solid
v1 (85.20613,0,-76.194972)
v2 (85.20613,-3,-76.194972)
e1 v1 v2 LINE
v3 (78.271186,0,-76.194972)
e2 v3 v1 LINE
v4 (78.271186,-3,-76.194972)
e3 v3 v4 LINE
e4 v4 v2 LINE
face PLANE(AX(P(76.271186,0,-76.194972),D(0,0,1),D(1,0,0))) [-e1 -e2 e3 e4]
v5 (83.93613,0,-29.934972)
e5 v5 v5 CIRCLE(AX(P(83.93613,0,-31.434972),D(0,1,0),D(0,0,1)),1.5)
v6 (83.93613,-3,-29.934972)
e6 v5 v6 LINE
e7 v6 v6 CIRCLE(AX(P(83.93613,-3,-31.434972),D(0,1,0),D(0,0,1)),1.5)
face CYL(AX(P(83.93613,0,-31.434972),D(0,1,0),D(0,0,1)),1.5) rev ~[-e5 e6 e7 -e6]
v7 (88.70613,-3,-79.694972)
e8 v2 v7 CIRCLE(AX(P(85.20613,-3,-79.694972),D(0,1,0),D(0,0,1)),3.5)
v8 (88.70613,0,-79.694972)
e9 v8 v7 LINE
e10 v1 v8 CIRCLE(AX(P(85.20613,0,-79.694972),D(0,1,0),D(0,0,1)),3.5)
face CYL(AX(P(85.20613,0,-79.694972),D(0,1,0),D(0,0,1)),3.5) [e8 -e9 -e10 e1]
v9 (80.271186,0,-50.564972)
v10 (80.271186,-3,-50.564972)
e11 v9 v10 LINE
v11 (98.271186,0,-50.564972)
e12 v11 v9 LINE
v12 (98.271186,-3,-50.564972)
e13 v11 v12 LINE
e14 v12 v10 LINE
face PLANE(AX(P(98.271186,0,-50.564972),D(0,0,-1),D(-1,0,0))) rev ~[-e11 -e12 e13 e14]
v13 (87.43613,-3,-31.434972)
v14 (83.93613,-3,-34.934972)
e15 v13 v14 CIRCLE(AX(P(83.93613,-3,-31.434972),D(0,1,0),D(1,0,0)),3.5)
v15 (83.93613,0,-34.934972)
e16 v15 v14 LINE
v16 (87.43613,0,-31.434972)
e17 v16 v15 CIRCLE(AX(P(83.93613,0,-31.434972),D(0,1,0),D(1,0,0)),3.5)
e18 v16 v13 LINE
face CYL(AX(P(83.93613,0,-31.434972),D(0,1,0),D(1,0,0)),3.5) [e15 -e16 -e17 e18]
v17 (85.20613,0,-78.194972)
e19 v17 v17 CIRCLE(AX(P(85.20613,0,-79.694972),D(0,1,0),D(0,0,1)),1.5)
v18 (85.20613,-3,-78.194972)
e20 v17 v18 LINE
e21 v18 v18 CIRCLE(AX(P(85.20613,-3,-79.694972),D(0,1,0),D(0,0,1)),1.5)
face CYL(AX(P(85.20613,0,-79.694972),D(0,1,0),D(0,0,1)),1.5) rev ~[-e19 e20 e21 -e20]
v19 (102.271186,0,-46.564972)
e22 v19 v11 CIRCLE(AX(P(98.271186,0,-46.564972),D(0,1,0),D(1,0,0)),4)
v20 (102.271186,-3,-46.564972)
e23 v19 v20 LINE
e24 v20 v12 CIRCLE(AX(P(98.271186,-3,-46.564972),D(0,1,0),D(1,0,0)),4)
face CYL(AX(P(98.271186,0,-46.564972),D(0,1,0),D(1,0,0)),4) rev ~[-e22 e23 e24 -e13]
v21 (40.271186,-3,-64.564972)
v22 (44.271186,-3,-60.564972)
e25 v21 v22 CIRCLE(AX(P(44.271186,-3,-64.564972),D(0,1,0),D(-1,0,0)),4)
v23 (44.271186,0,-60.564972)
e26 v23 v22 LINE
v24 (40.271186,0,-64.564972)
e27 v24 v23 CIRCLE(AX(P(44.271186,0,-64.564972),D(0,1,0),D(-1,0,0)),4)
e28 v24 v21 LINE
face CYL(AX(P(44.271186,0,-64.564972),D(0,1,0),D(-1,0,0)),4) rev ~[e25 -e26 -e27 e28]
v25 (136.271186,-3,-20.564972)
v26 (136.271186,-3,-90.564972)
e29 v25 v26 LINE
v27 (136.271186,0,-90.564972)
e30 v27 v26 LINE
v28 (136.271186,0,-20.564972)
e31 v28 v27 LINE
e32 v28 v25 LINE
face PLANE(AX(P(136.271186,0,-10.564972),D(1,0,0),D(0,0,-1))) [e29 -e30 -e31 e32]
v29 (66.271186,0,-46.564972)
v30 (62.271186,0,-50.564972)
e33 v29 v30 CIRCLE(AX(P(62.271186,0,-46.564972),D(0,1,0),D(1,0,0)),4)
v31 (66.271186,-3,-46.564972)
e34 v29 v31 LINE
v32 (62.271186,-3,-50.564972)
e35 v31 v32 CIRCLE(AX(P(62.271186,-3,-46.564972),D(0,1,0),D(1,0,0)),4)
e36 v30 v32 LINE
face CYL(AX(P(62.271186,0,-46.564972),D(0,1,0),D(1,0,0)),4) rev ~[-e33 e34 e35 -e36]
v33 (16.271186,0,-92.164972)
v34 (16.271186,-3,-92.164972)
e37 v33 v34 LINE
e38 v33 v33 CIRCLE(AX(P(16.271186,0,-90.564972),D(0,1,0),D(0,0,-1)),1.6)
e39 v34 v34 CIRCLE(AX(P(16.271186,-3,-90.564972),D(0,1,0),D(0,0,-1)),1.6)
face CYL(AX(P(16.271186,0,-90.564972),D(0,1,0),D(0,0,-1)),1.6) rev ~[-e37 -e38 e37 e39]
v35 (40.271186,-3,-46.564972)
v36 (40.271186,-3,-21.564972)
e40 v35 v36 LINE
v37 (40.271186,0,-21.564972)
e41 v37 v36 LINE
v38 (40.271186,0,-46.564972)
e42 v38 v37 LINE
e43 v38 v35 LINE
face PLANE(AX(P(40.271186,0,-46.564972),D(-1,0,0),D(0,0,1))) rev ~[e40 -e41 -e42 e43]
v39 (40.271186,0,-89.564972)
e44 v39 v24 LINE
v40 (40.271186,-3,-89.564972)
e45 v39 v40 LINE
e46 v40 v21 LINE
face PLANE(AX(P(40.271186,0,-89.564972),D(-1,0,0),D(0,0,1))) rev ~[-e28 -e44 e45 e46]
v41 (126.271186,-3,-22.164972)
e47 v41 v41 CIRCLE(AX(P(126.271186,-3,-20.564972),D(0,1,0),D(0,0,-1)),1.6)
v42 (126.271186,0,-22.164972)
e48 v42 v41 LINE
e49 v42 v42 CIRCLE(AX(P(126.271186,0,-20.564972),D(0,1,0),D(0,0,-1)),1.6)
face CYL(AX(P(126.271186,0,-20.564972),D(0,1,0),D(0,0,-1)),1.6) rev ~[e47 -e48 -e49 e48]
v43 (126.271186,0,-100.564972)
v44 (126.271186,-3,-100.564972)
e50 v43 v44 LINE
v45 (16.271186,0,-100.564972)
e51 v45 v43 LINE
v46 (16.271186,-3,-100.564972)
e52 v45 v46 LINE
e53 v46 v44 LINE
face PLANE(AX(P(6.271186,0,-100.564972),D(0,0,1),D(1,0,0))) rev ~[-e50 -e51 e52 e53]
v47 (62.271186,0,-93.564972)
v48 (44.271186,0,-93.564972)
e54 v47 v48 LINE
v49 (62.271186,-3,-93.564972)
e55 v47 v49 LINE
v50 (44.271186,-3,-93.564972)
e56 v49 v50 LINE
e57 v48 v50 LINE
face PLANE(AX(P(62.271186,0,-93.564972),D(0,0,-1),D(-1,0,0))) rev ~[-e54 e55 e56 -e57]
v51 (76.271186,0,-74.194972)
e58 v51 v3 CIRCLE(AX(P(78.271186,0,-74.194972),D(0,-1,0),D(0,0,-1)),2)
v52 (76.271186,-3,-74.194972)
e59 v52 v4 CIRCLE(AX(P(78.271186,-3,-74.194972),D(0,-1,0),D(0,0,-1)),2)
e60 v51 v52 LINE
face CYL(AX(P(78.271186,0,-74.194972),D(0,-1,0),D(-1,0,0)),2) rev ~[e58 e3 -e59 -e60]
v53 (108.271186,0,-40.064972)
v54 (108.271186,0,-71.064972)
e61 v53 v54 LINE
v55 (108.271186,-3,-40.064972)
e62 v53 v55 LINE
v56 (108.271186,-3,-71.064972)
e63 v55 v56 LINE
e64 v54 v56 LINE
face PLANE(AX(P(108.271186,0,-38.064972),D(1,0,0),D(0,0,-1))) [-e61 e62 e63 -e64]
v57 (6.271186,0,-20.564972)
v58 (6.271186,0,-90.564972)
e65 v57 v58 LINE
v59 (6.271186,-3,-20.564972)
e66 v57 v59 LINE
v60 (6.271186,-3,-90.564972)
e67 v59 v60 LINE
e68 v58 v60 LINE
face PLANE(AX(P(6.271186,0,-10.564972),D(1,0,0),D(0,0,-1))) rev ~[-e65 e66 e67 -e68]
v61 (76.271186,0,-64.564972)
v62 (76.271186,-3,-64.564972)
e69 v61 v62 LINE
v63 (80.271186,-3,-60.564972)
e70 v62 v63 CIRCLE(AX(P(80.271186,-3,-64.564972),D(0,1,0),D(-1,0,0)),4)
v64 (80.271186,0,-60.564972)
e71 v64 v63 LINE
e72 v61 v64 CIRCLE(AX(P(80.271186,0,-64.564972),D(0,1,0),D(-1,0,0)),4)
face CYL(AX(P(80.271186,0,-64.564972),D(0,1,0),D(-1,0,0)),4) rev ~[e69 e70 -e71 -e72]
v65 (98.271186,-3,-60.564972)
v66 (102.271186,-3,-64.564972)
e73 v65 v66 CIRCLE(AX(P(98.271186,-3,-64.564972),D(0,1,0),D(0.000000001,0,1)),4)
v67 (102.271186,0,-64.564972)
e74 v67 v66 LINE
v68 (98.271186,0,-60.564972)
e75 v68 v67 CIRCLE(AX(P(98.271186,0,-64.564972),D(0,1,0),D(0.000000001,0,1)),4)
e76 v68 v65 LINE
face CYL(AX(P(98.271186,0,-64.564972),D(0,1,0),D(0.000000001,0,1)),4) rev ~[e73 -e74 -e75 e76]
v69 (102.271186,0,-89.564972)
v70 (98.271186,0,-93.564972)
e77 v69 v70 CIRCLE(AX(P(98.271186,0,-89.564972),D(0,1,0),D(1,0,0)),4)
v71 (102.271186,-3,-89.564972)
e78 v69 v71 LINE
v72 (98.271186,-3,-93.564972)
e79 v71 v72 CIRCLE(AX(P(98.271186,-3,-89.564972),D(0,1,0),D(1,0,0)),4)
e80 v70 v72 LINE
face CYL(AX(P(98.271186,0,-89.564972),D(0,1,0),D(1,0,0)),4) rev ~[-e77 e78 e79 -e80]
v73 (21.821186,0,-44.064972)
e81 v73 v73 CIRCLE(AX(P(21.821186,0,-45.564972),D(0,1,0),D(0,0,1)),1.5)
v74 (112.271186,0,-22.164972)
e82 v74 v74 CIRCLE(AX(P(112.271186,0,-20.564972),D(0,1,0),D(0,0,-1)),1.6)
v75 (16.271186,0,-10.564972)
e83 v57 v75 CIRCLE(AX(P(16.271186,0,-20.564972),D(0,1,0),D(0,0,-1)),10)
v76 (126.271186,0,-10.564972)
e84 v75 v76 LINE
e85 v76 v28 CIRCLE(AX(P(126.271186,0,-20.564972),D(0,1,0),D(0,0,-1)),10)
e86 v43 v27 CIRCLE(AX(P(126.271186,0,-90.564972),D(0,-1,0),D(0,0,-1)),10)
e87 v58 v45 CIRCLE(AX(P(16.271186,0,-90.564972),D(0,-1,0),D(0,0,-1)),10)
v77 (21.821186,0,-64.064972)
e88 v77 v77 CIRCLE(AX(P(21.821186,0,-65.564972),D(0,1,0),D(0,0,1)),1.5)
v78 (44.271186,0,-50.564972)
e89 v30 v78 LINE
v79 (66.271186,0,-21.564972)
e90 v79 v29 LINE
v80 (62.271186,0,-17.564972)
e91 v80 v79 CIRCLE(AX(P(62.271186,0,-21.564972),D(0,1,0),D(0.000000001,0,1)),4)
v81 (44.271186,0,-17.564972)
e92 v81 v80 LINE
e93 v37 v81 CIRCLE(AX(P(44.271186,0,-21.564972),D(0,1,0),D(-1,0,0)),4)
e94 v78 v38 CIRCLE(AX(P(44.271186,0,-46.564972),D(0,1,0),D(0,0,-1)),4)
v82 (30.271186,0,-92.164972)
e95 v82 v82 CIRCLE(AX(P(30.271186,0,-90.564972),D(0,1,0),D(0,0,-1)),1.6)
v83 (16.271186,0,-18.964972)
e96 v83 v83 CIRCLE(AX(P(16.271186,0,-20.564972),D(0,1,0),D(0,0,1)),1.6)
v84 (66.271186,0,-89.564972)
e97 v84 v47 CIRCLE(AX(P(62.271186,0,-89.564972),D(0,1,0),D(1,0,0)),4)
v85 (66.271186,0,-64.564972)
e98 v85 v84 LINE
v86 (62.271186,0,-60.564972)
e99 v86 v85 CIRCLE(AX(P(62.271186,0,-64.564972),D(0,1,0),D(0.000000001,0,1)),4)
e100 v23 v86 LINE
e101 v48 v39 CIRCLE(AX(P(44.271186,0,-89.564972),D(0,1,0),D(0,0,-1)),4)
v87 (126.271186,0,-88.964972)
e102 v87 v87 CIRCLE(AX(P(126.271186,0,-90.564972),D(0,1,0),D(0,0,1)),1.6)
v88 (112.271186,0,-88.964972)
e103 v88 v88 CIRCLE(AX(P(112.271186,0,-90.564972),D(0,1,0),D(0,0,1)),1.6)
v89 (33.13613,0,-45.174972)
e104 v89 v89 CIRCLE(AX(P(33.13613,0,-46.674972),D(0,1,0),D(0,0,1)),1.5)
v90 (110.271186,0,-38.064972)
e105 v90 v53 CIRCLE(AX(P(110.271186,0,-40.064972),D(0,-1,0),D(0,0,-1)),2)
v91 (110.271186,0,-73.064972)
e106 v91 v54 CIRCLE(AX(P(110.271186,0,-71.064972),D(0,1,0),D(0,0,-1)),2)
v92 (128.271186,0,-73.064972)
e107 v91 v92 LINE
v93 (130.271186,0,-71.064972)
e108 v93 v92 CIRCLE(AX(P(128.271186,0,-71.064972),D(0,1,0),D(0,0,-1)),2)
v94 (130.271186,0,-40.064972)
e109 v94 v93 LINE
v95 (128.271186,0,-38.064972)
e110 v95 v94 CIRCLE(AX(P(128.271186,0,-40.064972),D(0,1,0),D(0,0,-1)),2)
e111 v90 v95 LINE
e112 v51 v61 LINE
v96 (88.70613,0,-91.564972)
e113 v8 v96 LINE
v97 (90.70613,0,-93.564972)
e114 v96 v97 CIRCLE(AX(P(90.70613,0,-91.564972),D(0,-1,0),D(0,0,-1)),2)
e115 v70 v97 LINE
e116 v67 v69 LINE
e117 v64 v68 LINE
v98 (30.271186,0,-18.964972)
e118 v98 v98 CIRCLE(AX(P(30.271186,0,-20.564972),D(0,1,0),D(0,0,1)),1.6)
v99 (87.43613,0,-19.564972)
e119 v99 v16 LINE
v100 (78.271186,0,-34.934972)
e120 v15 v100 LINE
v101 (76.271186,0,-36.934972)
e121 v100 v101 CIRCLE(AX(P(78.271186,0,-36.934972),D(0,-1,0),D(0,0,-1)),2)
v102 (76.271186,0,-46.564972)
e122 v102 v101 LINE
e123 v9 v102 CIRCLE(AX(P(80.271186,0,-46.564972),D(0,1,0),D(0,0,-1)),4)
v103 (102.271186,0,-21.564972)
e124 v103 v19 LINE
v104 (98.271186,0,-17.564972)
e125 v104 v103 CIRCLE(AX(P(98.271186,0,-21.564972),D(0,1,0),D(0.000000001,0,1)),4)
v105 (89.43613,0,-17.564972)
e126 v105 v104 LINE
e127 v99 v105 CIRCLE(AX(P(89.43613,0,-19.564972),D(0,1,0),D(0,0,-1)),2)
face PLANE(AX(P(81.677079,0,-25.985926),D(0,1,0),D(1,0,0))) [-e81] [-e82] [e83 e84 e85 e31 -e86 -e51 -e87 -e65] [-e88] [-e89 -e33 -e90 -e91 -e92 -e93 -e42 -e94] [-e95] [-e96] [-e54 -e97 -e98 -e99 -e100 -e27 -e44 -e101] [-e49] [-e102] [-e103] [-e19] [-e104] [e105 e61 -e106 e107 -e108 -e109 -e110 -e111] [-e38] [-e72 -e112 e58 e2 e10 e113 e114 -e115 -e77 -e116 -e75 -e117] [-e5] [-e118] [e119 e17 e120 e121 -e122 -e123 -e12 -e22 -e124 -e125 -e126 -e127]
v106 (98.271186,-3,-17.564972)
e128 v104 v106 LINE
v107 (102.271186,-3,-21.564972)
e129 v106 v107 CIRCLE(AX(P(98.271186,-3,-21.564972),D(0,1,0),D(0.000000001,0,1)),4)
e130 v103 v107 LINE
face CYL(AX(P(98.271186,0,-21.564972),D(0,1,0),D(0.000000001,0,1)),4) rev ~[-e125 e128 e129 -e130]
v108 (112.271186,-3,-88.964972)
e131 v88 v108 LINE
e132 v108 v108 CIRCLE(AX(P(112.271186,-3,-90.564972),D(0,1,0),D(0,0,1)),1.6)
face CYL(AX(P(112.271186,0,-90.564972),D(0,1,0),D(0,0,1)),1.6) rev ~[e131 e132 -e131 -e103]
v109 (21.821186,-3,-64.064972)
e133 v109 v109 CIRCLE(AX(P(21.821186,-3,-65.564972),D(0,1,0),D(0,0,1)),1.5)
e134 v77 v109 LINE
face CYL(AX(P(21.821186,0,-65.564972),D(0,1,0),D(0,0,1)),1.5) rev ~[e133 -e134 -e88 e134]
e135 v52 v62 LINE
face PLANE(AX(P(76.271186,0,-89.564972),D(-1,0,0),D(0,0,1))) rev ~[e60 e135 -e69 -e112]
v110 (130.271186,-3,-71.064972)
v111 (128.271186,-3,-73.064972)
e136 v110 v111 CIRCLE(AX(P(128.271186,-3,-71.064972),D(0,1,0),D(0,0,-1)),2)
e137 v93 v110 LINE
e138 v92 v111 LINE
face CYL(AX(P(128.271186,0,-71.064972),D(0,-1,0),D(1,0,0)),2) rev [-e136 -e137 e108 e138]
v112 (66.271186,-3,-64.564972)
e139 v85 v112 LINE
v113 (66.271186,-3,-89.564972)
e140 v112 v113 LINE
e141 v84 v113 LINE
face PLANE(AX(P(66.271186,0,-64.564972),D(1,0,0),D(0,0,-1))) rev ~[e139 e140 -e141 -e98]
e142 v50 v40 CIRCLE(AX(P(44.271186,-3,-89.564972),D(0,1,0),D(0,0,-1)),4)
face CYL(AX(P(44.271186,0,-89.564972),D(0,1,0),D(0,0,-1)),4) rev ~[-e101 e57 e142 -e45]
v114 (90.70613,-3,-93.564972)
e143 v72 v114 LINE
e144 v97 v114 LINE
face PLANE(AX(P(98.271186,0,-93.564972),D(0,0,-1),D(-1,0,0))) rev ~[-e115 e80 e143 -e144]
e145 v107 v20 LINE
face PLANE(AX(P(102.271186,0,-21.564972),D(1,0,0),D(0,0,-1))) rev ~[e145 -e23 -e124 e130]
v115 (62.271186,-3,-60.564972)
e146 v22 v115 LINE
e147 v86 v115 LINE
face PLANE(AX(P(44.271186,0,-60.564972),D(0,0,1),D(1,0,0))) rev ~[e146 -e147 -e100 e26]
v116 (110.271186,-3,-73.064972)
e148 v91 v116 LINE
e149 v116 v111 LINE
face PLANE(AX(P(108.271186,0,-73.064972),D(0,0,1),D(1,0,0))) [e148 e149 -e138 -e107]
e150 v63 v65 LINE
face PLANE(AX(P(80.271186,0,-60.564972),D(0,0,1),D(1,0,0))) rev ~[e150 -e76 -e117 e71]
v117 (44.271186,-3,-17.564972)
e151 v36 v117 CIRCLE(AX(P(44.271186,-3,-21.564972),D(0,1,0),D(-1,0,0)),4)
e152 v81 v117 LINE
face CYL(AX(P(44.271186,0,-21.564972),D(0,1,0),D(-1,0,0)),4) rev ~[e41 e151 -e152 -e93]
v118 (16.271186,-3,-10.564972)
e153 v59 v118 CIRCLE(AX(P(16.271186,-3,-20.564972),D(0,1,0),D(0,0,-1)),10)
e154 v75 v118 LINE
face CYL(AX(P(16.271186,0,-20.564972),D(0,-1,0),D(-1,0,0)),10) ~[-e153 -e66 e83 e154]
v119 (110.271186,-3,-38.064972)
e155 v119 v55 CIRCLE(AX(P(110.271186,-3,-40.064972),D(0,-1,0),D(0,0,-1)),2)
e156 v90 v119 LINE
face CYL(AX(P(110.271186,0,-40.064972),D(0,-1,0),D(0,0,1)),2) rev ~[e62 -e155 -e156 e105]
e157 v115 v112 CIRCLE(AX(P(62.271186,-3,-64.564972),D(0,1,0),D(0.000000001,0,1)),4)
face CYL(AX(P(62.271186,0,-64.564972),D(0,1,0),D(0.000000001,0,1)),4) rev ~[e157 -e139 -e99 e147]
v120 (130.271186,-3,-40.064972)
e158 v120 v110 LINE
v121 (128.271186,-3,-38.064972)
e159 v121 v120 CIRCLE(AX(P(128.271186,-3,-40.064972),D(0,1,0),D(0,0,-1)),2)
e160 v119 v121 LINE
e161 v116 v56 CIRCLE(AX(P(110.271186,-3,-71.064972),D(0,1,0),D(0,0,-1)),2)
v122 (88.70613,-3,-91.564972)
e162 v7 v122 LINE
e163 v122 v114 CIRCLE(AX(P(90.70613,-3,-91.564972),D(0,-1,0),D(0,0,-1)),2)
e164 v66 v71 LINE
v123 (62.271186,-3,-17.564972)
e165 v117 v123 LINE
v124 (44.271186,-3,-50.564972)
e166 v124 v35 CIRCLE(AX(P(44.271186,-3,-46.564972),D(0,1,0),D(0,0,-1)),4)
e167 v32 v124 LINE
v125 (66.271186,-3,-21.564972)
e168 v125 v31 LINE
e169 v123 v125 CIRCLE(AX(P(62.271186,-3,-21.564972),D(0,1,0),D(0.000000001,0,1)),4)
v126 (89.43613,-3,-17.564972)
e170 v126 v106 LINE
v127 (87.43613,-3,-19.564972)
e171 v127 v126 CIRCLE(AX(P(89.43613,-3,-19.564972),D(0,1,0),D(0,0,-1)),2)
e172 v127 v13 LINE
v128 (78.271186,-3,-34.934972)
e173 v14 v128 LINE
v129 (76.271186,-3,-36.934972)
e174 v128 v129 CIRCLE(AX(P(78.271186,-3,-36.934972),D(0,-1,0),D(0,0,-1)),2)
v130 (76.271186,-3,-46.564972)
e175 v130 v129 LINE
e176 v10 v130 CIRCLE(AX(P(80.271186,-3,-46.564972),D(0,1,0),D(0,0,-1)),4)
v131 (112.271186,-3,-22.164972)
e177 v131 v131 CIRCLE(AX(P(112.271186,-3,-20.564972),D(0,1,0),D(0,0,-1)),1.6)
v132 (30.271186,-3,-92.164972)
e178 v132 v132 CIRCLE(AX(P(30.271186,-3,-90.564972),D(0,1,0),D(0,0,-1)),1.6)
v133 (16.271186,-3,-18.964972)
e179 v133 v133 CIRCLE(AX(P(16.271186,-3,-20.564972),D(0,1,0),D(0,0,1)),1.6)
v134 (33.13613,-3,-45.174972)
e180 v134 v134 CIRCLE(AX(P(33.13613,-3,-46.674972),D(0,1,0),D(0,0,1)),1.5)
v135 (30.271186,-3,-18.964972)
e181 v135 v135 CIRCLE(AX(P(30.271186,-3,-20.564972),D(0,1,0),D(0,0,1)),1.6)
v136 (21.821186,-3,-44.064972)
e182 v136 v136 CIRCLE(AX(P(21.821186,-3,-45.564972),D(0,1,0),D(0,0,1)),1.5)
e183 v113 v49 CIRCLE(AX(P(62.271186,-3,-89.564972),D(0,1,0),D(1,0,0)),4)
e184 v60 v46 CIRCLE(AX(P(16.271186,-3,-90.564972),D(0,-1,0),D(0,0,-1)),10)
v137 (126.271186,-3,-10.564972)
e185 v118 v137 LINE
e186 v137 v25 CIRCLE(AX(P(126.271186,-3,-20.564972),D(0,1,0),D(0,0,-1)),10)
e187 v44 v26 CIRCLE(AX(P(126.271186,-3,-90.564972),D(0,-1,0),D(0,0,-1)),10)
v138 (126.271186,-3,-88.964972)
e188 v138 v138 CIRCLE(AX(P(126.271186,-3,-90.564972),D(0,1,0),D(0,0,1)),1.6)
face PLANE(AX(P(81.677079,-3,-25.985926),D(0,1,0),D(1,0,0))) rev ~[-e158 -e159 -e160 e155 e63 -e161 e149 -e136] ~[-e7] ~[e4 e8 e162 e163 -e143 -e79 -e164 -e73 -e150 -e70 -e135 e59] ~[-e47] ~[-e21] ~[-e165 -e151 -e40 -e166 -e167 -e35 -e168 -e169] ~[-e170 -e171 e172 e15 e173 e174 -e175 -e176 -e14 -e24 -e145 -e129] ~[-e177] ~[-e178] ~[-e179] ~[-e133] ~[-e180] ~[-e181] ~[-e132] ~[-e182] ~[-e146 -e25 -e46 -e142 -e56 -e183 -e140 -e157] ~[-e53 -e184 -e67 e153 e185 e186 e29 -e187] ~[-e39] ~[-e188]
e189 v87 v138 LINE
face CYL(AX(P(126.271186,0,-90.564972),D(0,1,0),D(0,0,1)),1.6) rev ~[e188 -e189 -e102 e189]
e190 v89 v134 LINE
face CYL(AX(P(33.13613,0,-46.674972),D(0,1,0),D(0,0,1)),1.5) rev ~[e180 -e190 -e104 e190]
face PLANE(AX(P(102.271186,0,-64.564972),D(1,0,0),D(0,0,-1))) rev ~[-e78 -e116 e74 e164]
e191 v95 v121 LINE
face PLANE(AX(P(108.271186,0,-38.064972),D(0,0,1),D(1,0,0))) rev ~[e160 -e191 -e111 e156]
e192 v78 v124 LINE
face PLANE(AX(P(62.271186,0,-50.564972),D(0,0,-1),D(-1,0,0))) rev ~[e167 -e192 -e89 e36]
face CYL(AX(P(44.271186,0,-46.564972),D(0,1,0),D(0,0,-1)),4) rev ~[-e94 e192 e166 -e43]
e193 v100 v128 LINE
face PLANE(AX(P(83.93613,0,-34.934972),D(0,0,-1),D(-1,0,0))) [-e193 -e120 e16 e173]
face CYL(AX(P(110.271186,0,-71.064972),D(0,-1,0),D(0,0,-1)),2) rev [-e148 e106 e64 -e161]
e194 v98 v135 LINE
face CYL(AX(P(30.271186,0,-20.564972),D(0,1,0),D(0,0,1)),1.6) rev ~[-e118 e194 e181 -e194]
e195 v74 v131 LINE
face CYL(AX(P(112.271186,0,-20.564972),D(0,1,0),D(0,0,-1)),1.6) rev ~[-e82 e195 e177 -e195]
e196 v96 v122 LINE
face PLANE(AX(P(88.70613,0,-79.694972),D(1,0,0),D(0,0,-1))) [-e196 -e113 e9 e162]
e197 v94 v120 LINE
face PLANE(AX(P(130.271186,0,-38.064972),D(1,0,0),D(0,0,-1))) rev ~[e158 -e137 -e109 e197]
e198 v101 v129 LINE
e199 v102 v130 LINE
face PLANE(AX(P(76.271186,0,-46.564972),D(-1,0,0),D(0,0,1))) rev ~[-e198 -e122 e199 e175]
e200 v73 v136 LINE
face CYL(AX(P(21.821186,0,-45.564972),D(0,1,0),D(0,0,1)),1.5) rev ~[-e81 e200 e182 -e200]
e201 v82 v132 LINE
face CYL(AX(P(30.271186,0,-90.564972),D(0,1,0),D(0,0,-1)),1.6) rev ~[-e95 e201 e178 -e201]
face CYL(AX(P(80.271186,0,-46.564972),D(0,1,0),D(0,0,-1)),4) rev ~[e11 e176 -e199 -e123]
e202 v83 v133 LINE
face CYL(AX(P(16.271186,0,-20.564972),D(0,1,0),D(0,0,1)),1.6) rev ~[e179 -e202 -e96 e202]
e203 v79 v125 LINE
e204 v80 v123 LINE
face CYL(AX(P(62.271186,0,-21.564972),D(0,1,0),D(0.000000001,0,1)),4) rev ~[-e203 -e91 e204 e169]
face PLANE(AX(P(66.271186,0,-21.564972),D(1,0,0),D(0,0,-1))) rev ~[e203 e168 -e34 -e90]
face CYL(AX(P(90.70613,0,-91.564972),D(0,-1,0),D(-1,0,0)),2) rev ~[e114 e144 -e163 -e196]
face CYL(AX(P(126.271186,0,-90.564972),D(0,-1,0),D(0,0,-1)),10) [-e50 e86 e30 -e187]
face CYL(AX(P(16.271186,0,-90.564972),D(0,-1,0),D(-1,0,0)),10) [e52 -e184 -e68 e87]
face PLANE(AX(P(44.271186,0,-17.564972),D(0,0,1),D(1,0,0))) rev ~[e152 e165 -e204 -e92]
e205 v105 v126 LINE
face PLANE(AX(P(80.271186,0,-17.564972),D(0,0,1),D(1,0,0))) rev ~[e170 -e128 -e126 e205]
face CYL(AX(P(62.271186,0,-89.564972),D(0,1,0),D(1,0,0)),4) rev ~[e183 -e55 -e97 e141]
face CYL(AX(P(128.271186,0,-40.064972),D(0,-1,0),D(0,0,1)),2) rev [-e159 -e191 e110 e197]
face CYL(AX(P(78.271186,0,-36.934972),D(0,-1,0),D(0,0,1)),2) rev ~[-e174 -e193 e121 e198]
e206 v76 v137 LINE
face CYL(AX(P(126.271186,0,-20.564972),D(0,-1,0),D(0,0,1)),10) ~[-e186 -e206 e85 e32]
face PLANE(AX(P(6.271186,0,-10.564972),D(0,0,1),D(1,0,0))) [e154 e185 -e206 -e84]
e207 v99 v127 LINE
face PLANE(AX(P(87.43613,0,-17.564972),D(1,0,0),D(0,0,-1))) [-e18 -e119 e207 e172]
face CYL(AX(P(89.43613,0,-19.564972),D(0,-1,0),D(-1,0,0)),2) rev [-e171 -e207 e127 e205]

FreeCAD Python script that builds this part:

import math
import FreeCAD as App
import Part
import Sketcher

V = App.Vector


def edges_at(feature, points):
    """Names of the edges that pass closest to the given points."""
    edges = feature.Shape.Edges
    near = lambda p: min(range(len(edges)), key=lambda i: edges[i].distToShape(Part.Vertex(*p))[0])
    return sorted({f"Edge{near(p) + 1}" for p in points})


def add_polygon(sketch, points):
    """Adds a closed chain of lines whose ends are joined by coincident constraints."""
    first, n = sketch.GeometryCount, len(points)
    for a, b in zip(points, points[1:] + points[:1]):
        sketch.addGeometry(Part.LineSegment(App.Vector(*a, 0), App.Vector(*b, 0)), False)
    for i in range(n):
        sketch.addConstraint(Sketcher.Constraint("Coincident", first + i, 2, first + (i + 1) % n, 1))

doc = App.newDocument("Part")
params = doc.addObject("Spreadsheet::Sheet", "Params")
for row, (alias, value) in enumerate([
    ("sketch1_width", "130 mm"),
    ("sketch1_height", "90 mm"),
    ("pad1_length", "3 mm"),
    ("sketch2_diameter", "3 mm"),
    ("pocket1_length", "10 mm"),
    ("sketch3_diameter", "3.2 mm"),
    ("pocket2_length", "10 mm"),
    ("fillet_radius", "10 mm"),
    ("sketch4_radius", "4 mm"),
    ("sketch4_width", "18 mm"),
    ("sketch4_height", "25 mm"),
    ("pocket3_length", "10 mm"),
    ("sketch5_diameter", "3 mm"),
    ("sketch5_radius", "3.5 mm"),
    ("sketch5_height", "13.87 mm"),
    ("pad2_length", "3 mm"),
    ("sketch6_diameter", "3 mm"),
    ("pocket4_length", "3 mm"),
    ("sketch7_diameter", "3 mm"),
    ("pocket5_length", "10 mm"),
    ("sketch8_width", "22 mm"),
    ("sketch8_height", "35 mm"),
    ("pocket6_length", "10 mm"),
    ("fillet2_radius", "2 mm"),
], start=1):
    params.set(f"A{row}", alias)
    params.set(f"B{row}", "=" + value)
    params.setAlias(f"B{row}", alias)

body = doc.addObject("PartDesign::Body", "Body")

# Sketch on XZ plane
sketch1 = body.newObject("Sketcher::SketchObject", "Sketch")
sketch1.AttachmentSupport = (doc.getObject("XZ_Plane"), [""])
sketch1.MapMode = "FlatFace"
add_polygon(sketch1, [(6, -101), (6, -11), (136, -11), (136, -101)])  # lines 0-3
sketch1.addConstraint(Sketcher.Constraint("Vertical", 0))
sketch1.addConstraint(Sketcher.Constraint("Horizontal", 1))
sketch1.addConstraint(Sketcher.Constraint("Vertical", 2))
sketch1.addConstraint(Sketcher.Constraint("Horizontal", 3))
sketch1.addConstraint(Sketcher.Constraint("DistanceX", 1, 1, 1, 2, 130.0))
sketch1.addConstraint(Sketcher.Constraint("DistanceY", 0, 1, 0, 2, 90.0))
sketch1.addConstraint(Sketcher.Constraint("DistanceY", 0, 2, -1, 1, 10.564972))
sketch1.addConstraint(Sketcher.Constraint("DistanceX", -1, 1, 0, 2, 6.271186))
sketch1.setExpression("Constraints[8]", "Params.sketch1_width")
sketch1.setExpression("Constraints[9]", "Params.sketch1_height")
pad1 = body.newObject("PartDesign::Pad", "Pad")
pad1.Profile = sketch1
pad1.setExpression("Length", "Params.pad1_length")

# Sketch on XZ plane
sketch2 = body.newObject("Sketcher::SketchObject", "Sketch001")
sketch2.AttachmentSupport = (doc.getObject("XZ_Plane"), [""])
sketch2.MapMode = "FlatFace"
sketch2.addGeometry(Part.Circle(V(126.3, -63.6, 0), V(0, 0, 1), 1.5), False)
sketch2.addGeometry(Part.Circle(V(126.3, -47.6, 0), V(0, 0, 1), 1.5), False)
sketch2.addGeometry(Part.Circle(V(112.3, -47.6, 0), V(0, 0, 1), 1.5), False)
sketch2.addGeometry(Part.Circle(V(112.3, -63.6, 0), V(0, 0, 1), 1.5), False)
sketch2.addGeometry(Part.Circle(V(16.3, -47.6, 0), V(0, 0, 1), 1.5), False)
sketch2.addGeometry(Part.Circle(V(30.3, -47.6, 0), V(0, 0, 1), 1.5), False)
sketch2.addGeometry(Part.Circle(V(16.3, -63.6, 0), V(0, 0, 1), 1.5), False)
sketch2.addGeometry(Part.Circle(V(30.3, -63.6, 0), V(0, 0, 1), 1.5), False)
sketch2.addConstraint(Sketcher.Constraint("Equal", 0, 1))
sketch2.addConstraint(Sketcher.Constraint("Equal", 1, 2))
sketch2.addConstraint(Sketcher.Constraint("Equal", 2, 3))
sketch2.addConstraint(Sketcher.Constraint("Equal", 3, 4))
sketch2.addConstraint(Sketcher.Constraint("Equal", 4, 5))
sketch2.addConstraint(Sketcher.Constraint("Equal", 5, 6))
sketch2.addConstraint(Sketcher.Constraint("Equal", 6, 7))
sketch2.addConstraint(Sketcher.Constraint("Horizontal", 1, 3, 2, 3))
sketch2.addConstraint(Sketcher.Constraint("Horizontal", 0, 3, 3, 3))
sketch2.addConstraint(Sketcher.Constraint("Horizontal", 2, 3, 4, 3))
sketch2.addConstraint(Sketcher.Constraint("Horizontal", 4, 3, 5, 3))
sketch2.addConstraint(Sketcher.Constraint("Horizontal", 3, 3, 6, 3))
sketch2.addConstraint(Sketcher.Constraint("Horizontal", 6, 3, 7, 3))
sketch2.addConstraint(Sketcher.Constraint("Vertical", 0, 3, 1, 3))
sketch2.addConstraint(Sketcher.Constraint("Vertical", 2, 3, 3, 3))
sketch2.addConstraint(Sketcher.Constraint("Vertical", 4, 3, 6, 3))
sketch2.addConstraint(Sketcher.Constraint("Vertical", 5, 3, 7, 3))
sketch2.addConstraint(Sketcher.Constraint("Diameter", 0, 3.0))
sketch2.addConstraint(Sketcher.Constraint("DistanceY", 0, 3, 1, 3, 16.0))
sketch2.addConstraint(Sketcher.Constraint("DistanceX", 2, 3, 1, 3, 14.0))
sketch2.addConstraint(Sketcher.Constraint("DistanceX", 4, 3, 2, 3, 96.0))
sketch2.addConstraint(Sketcher.Constraint("DistanceX", 4, 3, 5, 3, 14.0))
sketch2.addConstraint(Sketcher.Constraint("DistanceY", 0, 3, -1, 1, 63.564972))
sketch2.addConstraint(Sketcher.Constraint("DistanceX", -1, 1, 0, 3, 126.271186))
sketch2.setExpression("Constraints[17]", "Params.sketch2_diameter")
pocket1 = body.newObject("PartDesign::Pocket", "Pocket")
pocket1.Profile = sketch2
pocket1.setExpression("Length", "Params.pocket1_length")
pocket1.Reversed = True

# Sketch on XZ plane
sketch3 = body.newObject("Sketcher::SketchObject", "Sketch002")
sketch3.AttachmentSupport = (doc.getObject("XZ_Plane"), [""])
sketch3.MapMode = "FlatFace"
sketch3.addGeometry(Part.Circle(V(16.3, -20.6, 0), V(0, 0, 1), 1.6), False)
sketch3.addGeometry(Part.Circle(V(30.3, -20.6, 0), V(0, 0, 1), 1.6), False)
sketch3.addGeometry(Part.Circle(V(30.3, -90.6, 0), V(0, 0, 1), 1.6), False)
sketch3.addGeometry(Part.Circle(V(16.3, -90.6, 0), V(0, 0, 1), 1.6), False)
sketch3.addGeometry(Part.Circle(V(112.3, -20.6, 0), V(0, 0, 1), 1.6), False)
sketch3.addGeometry(Part.Circle(V(126.3, -20.6, 0), V(0, 0, 1), 1.6), False)
sketch3.addGeometry(Part.Circle(V(126.3, -90.6, 0), V(0, 0, 1), 1.6), False)
sketch3.addGeometry(Part.Circle(V(112.3, -90.6, 0), V(0, 0, 1), 1.6), False)
sketch3.addConstraint(Sketcher.Constraint("Equal", 0, 1))
sketch3.addConstraint(Sketcher.Constraint("Equal", 1, 2))
sketch3.addConstraint(Sketcher.Constraint("Equal", 2, 3))
sketch3.addConstraint(Sketcher.Constraint("Equal", 3, 4))
sketch3.addConstraint(Sketcher.Constraint("Equal", 4, 5))
sketch3.addConstraint(Sketcher.Constraint("Equal", 5, 6))
sketch3.addConstraint(Sketcher.Constraint("Equal", 6, 7))
sketch3.addConstraint(Sketcher.Constraint("Horizontal", 0, 3, 1, 3))
sketch3.addConstraint(Sketcher.Constraint("Horizontal", 2, 3, 3, 3))
sketch3.addConstraint(Sketcher.Constraint("Horizontal", 1, 3, 4, 3))
sketch3.addConstraint(Sketcher.Constraint("Horizontal", 4, 3, 5, 3))
sketch3.addConstraint(Sketcher.Constraint("Horizontal", 3, 3, 6, 3))
sketch3.addConstraint(Sketcher.Constraint("Horizontal", 6, 3, 7, 3))
sketch3.addConstraint(Sketcher.Constraint("Vertical", 1, 3, 2, 3))
sketch3.addConstraint(Sketcher.Constraint("Vertical", 0, 3, 3, 3))
sketch3.addConstraint(Sketcher.Constraint("Vertical", 5, 3, 6, 3))
sketch3.addConstraint(Sketcher.Constraint("Vertical", 4, 3, 7, 3))
sketch3.addConstraint(Sketcher.Constraint("Diameter", 0, 3.2))
sketch3.addConstraint(Sketcher.Constraint("DistanceX", 0, 3, 1, 3, 14.0))
sketch3.addConstraint(Sketcher.Constraint("DistanceY", 2, 3, 1, 3, 70.0))
sketch3.addConstraint(Sketcher.Constraint("DistanceX", 1, 3, 4, 3, 82.0))
sketch3.addConstraint(Sketcher.Constraint("DistanceX", 4, 3, 5, 3, 14.0))
sketch3.addConstraint(Sketcher.Constraint("DistanceY", 0, 3, -1, 1, 20.564972))
sketch3.addConstraint(Sketcher.Constraint("DistanceX", -1, 1, 0, 3, 16.271186))
sketch3.setExpression("Constraints[17]", "Params.sketch3_diameter")
pocket2 = body.newObject("PartDesign::Pocket", "Pocket001")
pocket2.Profile = sketch3
pocket2.setExpression("Length", "Params.pocket2_length")
pocket2.Reversed = True
doc.recompute()

fillet = body.newObject("PartDesign::Fillet", "Fillet")
fillet.Base = (pocket2, edges_at(pocket2, [
    (6.271, -1.5, -100.565),
    (136.271, -1.5, -100.565),
    (136.271, -1.5, -10.565),
    (6.271, -1.5, -10.565),
]))
fillet.setExpression("Radius", "Params.fillet_radius")

# Sketch on XZ plane
sketch4 = body.newObject("Sketcher::SketchObject", "Sketch003")
sketch4.AttachmentSupport = (doc.getObject("XZ_Plane"), [""])
sketch4.MapMode = "FlatFace"
sketch4.addGeometry(Part.LineSegment(V(76.3, -89.6, 0), V(76.3, -64.6, 0)), False)
sketch4.addGeometry(Part.ArcOfCircle(Part.Circle(V(80.3, -64.6, 0), V(0, 0, 1), 4), math.radians(90), math.radians(180)), False)
sketch4.addGeometry(Part.LineSegment(V(80.3, -60.6, 0), V(98.3, -60.6, 0)), False)
sketch4.addGeometry(Part.ArcOfCircle(Part.Circle(V(98.3, -64.6, 0), V(0, 0, 1), 4), math.radians(0), math.radians(90)), False)
sketch4.addGeometry(Part.LineSegment(V(102.3, -64.6, 0), V(102.3, -89.6, 0)), False)
sketch4.addGeometry(Part.ArcOfCircle(Part.Circle(V(98.3, -89.6, 0), V(0, 0, 1), 4), math.radians(-90), math.radians(0)), False)
sketch4.addGeometry(Part.LineSegment(V(98.3, -93.6, 0), V(80.3, -93.6, 0)), False)
sketch4.addGeometry(Part.ArcOfCircle(Part.Circle(V(80.3, -89.6, 0), V(0, 0, 1), 4), math.radians(180), math.radians(270)), False)
sketch4.addGeometry(Part.LineSegment(V(40.3, -89.6, 0), V(40.3, -64.6, 0)), False)
sketch4.addGeometry(Part.ArcOfCircle(Part.Circle(V(44.3, -64.6, 0), V(0, 0, 1), 4), math.radians(90), math.radians(180)), False)
sketch4.addGeometry(Part.LineSegment(V(44.3, -60.6, 0), V(62.3, -60.6, 0)), False)
sketch4.addGeometry(Part.ArcOfCircle(Part.Circle(V(62.3, -64.6, 0), V(0, 0, 1), 4), math.radians(0), math.radians(90)), False)
sketch4.addGeometry(Part.LineSegment(V(66.3, -64.6, 0), V(66.3, -89.6, 0)), False)
sketch4.addGeometry(Part.ArcOfCircle(Part.Circle(V(62.3, -89.6, 0), V(0, 0, 1), 4), math.radians(-90), math.radians(0)), False)
sketch4.addGeometry(Part.LineSegment(V(62.3, -93.6, 0), V(44.3, -93.6, 0)), False)
sketch4.addGeometry(Part.ArcOfCircle(Part.Circle(V(44.3, -89.6, 0), V(0, 0, 1), 4), math.radians(180), math.radians(270)), False)
sketch4.addGeometry(Part.LineSegment(V(66.3, -21.6, 0), V(66.3, -46.6, 0)), False)
sketch4.addGeometry(Part.ArcOfCircle(Part.Circle(V(62.3, -46.6, 0), V(0, 0, 1), 4), math.radians(-90), math.radians(0)), False)
sketch4.addGeometry(Part.LineSegment(V(62.3, -50.6, 0), V(44.3, -50.6, 0)), False)
sketch4.addGeometry(Part.ArcOfCircle(Part.Circle(V(44.3, -46.6, 0), V(0, 0, 1), 4), math.radians(180), math.radians(270)), False)
sketch4.addGeometry(Part.LineSegment(V(40.3, -46.6, 0), V(40.3, -21.6, 0)), False)
sketch4.addGeometry(Part.ArcOfCircle(Part.Circle(V(44.3, -21.6, 0), V(0, 0, 1), 4), math.radians(90), math.radians(180)), False)
sketch4.addGeometry(Part.LineSegment(V(44.3, -17.6, 0), V(62.3, -17.6, 0)), False)
sketch4.addGeometry(Part.ArcOfCircle(Part.Circle(V(62.3, -21.6, 0), V(0, 0, 1), 4), math.radians(0), math.radians(90)), False)
sketch4.addGeometry(Part.LineSegment(V(102.3, -21.6, 0), V(102.3, -46.6, 0)), False)
sketch4.addGeometry(Part.ArcOfCircle(Part.Circle(V(98.3, -46.6, 0), V(0, 0, 1), 4), math.radians(-90), math.radians(0)), False)
sketch4.addGeometry(Part.LineSegment(V(98.3, -50.6, 0), V(80.3, -50.6, 0)), False)
sketch4.addGeometry(Part.ArcOfCircle(Part.Circle(V(80.3, -46.6, 0), V(0, 0, 1), 4), math.radians(180), math.radians(270)), False)
sketch4.addGeometry(Part.LineSegment(V(76.3, -46.6, 0), V(76.3, -21.6, 0)), False)
sketch4.addGeometry(Part.ArcOfCircle(Part.Circle(V(80.3, -21.6, 0), V(0, 0, 1), 4), math.radians(90), math.radians(180)), False)
sketch4.addGeometry(Part.LineSegment(V(80.3, -17.6, 0), V(98.3, -17.6, 0)), False)
sketch4.addGeometry(Part.ArcOfCircle(Part.Circle(V(98.3, -21.6, 0), V(0, 0, 1), 4), math.radians(0), math.radians(90)), False)
sketch4.addConstraint(Sketcher.Constraint("Tangent", 0, 2, 1, 2))
sketch4.addConstraint(Sketcher.Constraint("Tangent", 1, 1, 2, 1))
sketch4.addConstraint(Sketcher.Constraint("Tangent", 2, 2, 3, 2))
sketch4.addConstraint(Sketcher.Constraint("Tangent", 3, 1, 4, 1))
sketch4.addConstraint(Sketcher.Constraint("Tangent", 4, 2, 5, 2))
sketch4.addConstraint(Sketcher.Constraint("Tangent", 5, 1, 6, 1))
sketch4.addConstraint(Sketcher.Constraint("Tangent", 6, 2, 7, 2))
sketch4.addConstraint(Sketcher.Constraint("Tangent", 7, 1, 0, 1))
sketch4.addConstraint(Sketcher.Constraint("Tangent", 8, 2, 9, 2))
sketch4.addConstraint(Sketcher.Constraint("Tangent", 9, 1, 10, 1))
sketch4.addConstraint(Sketcher.Constraint("Tangent", 10, 2, 11, 2))
sketch4.addConstraint(Sketcher.Constraint("Tangent", 11, 1, 12, 1))
sketch4.addConstraint(Sketcher.Constraint("Tangent", 12, 2, 13, 2))
sketch4.addConstraint(Sketcher.Constraint("Tangent", 13, 1, 14, 1))
sketch4.addConstraint(Sketcher.Constraint("Tangent", 14, 2, 15, 2))
sketch4.addConstraint(Sketcher.Constraint("Tangent", 15, 1, 8, 1))
sketch4.addConstraint(Sketcher.Constraint("Tangent", 16, 2, 17, 2))
sketch4.addConstraint(Sketcher.Constraint("Tangent", 17, 1, 18, 1))
sketch4.addConstraint(Sketcher.Constraint("Tangent", 18, 2, 19, 2))
sketch4.addConstraint(Sketcher.Constraint("Tangent", 19, 1, 20, 1))
sketch4.addConstraint(Sketcher.Constraint("Tangent", 20, 2, 21, 2))
sketch4.addConstraint(Sketcher.Constraint("Tangent", 21, 1, 22, 1))
sketch4.addConstraint(Sketcher.Constraint("Tangent", 22, 2, 23, 2))
sketch4.addConstraint(Sketcher.Constraint("Tangent", 23, 1, 16, 1))
sketch4.addConstraint(Sketcher.Constraint("Tangent", 24, 2, 25, 2))
sketch4.addConstraint(Sketcher.Constraint("Tangent", 25, 1, 26, 1))
sketch4.addConstraint(Sketcher.Constraint("Tangent", 26, 2, 27, 2))
sketch4.addConstraint(Sketcher.Constraint("Tangent", 27, 1, 28, 1))
sketch4.addConstraint(Sketcher.Constraint("Tangent", 28, 2, 29, 2))
sketch4.addConstraint(Sketcher.Constraint("Tangent", 29, 1, 30, 1))
sketch4.addConstraint(Sketcher.Constraint("Tangent", 30, 2, 31, 2))
sketch4.addConstraint(Sketcher.Constraint("Tangent", 31, 1, 24, 1))
sketch4.addConstraint(Sketcher.Constraint("Vertical", 0))
sketch4.addConstraint(Sketcher.Constraint("Horizontal", 2))
sketch4.addConstraint(Sketcher.Constraint("Vertical", 4))
sketch4.addConstraint(Sketcher.Constraint("Horizontal", 6))
sketch4.addConstraint(Sketcher.Constraint("Vertical", 8))
sketch4.addConstraint(Sketcher.Constraint("Horizontal", 10))
sketch4.addConstraint(Sketcher.Constraint("Vertical", 12))
sketch4.addConstraint(Sketcher.Constraint("Horizontal", 14))
sketch4.addConstraint(Sketcher.Constraint("Vertical", 16))
sketch4.addConstraint(Sketcher.Constraint("Horizontal", 18))
sketch4.addConstraint(Sketcher.Constraint("Vertical", 20))
sketch4.addConstraint(Sketcher.Constraint("Horizontal", 22))
sketch4.addConstraint(Sketcher.Constraint("Vertical", 24))
sketch4.addConstraint(Sketcher.Constraint("Horizontal", 26))
sketch4.addConstraint(Sketcher.Constraint("Vertical", 28))
sketch4.addConstraint(Sketcher.Constraint("Horizontal", 30))
sketch4.addConstraint(Sketcher.Constraint("Equal", 1, 3))
sketch4.addConstraint(Sketcher.Constraint("Equal", 3, 5))
sketch4.addConstraint(Sketcher.Constraint("Equal", 5, 7))
sketch4.addConstraint(Sketcher.Constraint("Equal", 7, 9))
sketch4.addConstraint(Sketcher.Constraint("Equal", 9, 11))
sketch4.addConstraint(Sketcher.Constraint("Equal", 11, 13))
sketch4.addConstraint(Sketcher.Constraint("Equal", 13, 15))
sketch4.addConstraint(Sketcher.Constraint("Equal", 15, 17))
sketch4.addConstraint(Sketcher.Constraint("Equal", 17, 19))
sketch4.addConstraint(Sketcher.Constraint("Equal", 19, 21))
sketch4.addConstraint(Sketcher.Constraint("Equal", 21, 23))
sketch4.addConstraint(Sketcher.Constraint("Equal", 23, 25))
sketch4.addConstraint(Sketcher.Constraint("Equal", 25, 27))
sketch4.addConstraint(Sketcher.Constraint("Equal", 27, 29))
sketch4.addConstraint(Sketcher.Constraint("Equal", 29, 31))
sketch4.addConstraint(Sketcher.Constraint("Horizontal", 3, 3, 9, 3))
sketch4.addConstraint(Sketcher.Constraint("Horizontal", 7, 3, 13, 3))
sketch4.addConstraint(Sketcher.Constraint("Horizontal", 19, 3, 25, 3))
sketch4.addConstraint(Sketcher.Constraint("Horizontal", 23, 3, 29, 3))
sketch4.addConstraint(Sketcher.Constraint("Vertical", 13, 3, 17, 3))
sketch4.addConstraint(Sketcher.Constraint("Vertical", 15, 3, 19, 3))
sketch4.addConstraint(Sketcher.Constraint("Vertical", 5, 3, 25, 3))
sketch4.addConstraint(Sketcher.Constraint("Vertical", 7, 3, 27, 3))
sketch4.addConstraint(Sketcher.Constraint("Equal", 6, 10))
sketch4.addConstraint(Sketcher.Constraint("Equal", 12, 16))
sketch4.addConstraint(Sketcher.Constraint("Radius", 1, 4.0))
sketch4.addConstraint(Sketcher.Constraint("DistanceX", 2, 1, 2, 2, 18.0))
sketch4.addConstraint(Sketcher.Constraint("DistanceY", 0, 1, 0, 2, 25.0))
sketch4.addConstraint(Sketcher.Constraint("DistanceX", 9, 3, 1, 3, 36.0))
sketch4.addConstraint(Sketcher.Constraint("DistanceY", 11, 3, 17, 3, 18.0))
sketch4.addConstraint(Sketcher.Constraint("DistanceY", 1, 3, -1, 1, 64.564972))
sketch4.addConstraint(Sketcher.Constraint("DistanceX", -1, 1, 1, 3, 80.271186))
sketch4.setExpression("Constraints[73]", "Params.sketch4_radius")
sketch4.setExpression("Constraints[74]", "Params.sketch4_width")
sketch4.setExpression("Constraints[75]", "Params.sketch4_height")
pocket3 = body.newObject("PartDesign::Pocket", "Pocket002")
pocket3.Profile = sketch4
pocket3.setExpression("Length", "Params.pocket3_length")
pocket3.Reversed = True

# Sketch on XZ plane
sketch5 = body.newObject("Sketcher::SketchObject", "Sketch004")
sketch5.AttachmentSupport = (doc.getObject("XZ_Plane"), [""])
sketch5.MapMode = "FlatFace"
sketch5.addGeometry(Part.LineSegment(V(87.4, -17.6, 0), V(87.4, -31.4, 0)), False)
sketch5.addGeometry(Part.ArcOfCircle(Part.Circle(V(83.9, -31.4, 0), V(0, 0, 1), 3.5), math.radians(-90), math.radians(0)), False)
sketch5.addGeometry(Part.LineSegment(V(83.9, -34.9, 0), V(76.3, -34.9, 0)), False)
sketch5.addGeometry(Part.LineSegment(V(76.3, -34.9, 0), V(76.3, -17.6, 0)), False)
sketch5.addGeometry(Part.LineSegment(V(76.3, -17.6, 0), V(87.4, -17.6, 0)), False)
sketch5.addGeometry(Part.Circle(V(83.9, -31.4, 0), V(0, 0, 1), 1.5), False)
sketch5.addGeometry(Part.LineSegment(V(88.7, -79.7, 0), V(88.7, -93.6, 0)), False)
sketch5.addGeometry(Part.LineSegment(V(88.7, -93.6, 0), V(76.3, -93.6, 0)), False)
sketch5.addGeometry(Part.LineSegment(V(76.3, -93.6, 0), V(76.3, -76.2, 0)), False)
sketch5.addGeometry(Part.LineSegment(V(76.3, -76.2, 0), V(85.2, -76.2, 0)), False)
sketch5.addGeometry(Part.ArcOfCircle(Part.Circle(V(85.2, -79.7, 0), V(0, 0, 1), 3.5), math.radians(0), math.radians(90)), False)
sketch5.addGeometry(Part.Circle(V(85.2, -79.7, 0), V(0, 0, 1), 1.5), False)
sketch5.addGeometry(Part.Circle(V(30.3, -47.6, 0), V(0, 0, 1), 1.5), False)
sketch5.addGeometry(Part.Circle(V(16.3, -47.6, 0), V(0, 0, 1), 1.5), False)
sketch5.addGeometry(Part.Circle(V(16.3, -63.6, 0), V(0, 0, 1), 1.5), False)
sketch5.addGeometry(Part.Circle(V(30.3, -63.6, 0), V(0, 0, 1), 1.5), False)
sketch5.addGeometry(Part.Circle(V(112.3, -47.6, 0), V(0, 0, 1), 1.5), False)
sketch5.addGeometry(Part.Circle(V(112.3, -63.6, 0), V(0, 0, 1), 1.5), False)
sketch5.addGeometry(Part.Circle(V(126.3, -63.6, 0), V(0, 0, 1), 1.5), False)
sketch5.addGeometry(Part.Circle(V(126.3, -47.6, 0), V(0, 0, 1), 1.5), False)
sketch5.addConstraint(Sketcher.Constraint("Tangent", 0, 2, 1, 2))
sketch5.addConstraint(Sketcher.Constraint("Tangent", 1, 1, 2, 1))
sketch5.addConstraint(Sketcher.Constraint("Coincident", 2, 2, 3, 1))
sketch5.addConstraint(Sketcher.Constraint("Coincident", 3, 2, 4, 1))
sketch5.addConstraint(Sketcher.Constraint("Coincident", 4, 2, 0, 1))
sketch5.addConstraint(Sketcher.Constraint("Coincident", 6, 2, 7, 1))
sketch5.addConstraint(Sketcher.Constraint("Coincident", 7, 2, 8, 1))
sketch5.addConstraint(Sketcher.Constraint("Coincident", 8, 2, 9, 1))
sketch5.addConstraint(Sketcher.Constraint("Tangent", 9, 2, 10, 2))
sketch5.addConstraint(Sketcher.Constraint("Tangent", 10, 1, 6, 1))
sketch5.addConstraint(Sketcher.Constraint("Vertical", 0))
sketch5.addConstraint(Sketcher.Constraint("Horizontal", 2))
sketch5.addConstraint(Sketcher.Constraint("Vertical", 3))
sketch5.addConstraint(Sketcher.Constraint("Horizontal", 4))
sketch5.addConstraint(Sketcher.Constraint("Vertical", 6))
sketch5.addConstraint(Sketcher.Constraint("Horizontal", 7))
sketch5.addConstraint(Sketcher.Constraint("Vertical", 8))
sketch5.addConstraint(Sketcher.Constraint("Horizontal", 9))
sketch5.addConstraint(Sketcher.Constraint("Coincident", 5, 3, 1, 3))
sketch5.addConstraint(Sketcher.Constraint("Coincident", 11, 3, 10, 3))
sketch5.addConstraint(Sketcher.Constraint("Equal", 1, 10))
sketch5.addConstraint(Sketcher.Constraint("Equal", 5, 11))
sketch5.addConstraint(Sketcher.Constraint("Equal", 11, 12))
sketch5.addConstraint(Sketcher.Constraint("Equal", 12, 13))
sketch5.addConstraint(Sketcher.Constraint("Equal", 13, 14))
sketch5.addConstraint(Sketcher.Constraint("Equal", 14, 15))
sketch5.addConstraint(Sketcher.Constraint("Equal", 15, 16))
sketch5.addConstraint(Sketcher.Constraint("Equal", 16, 17))
sketch5.addConstraint(Sketcher.Constraint("Equal", 17, 18))
sketch5.addConstraint(Sketcher.Constraint("Equal", 18, 19))
sketch5.addConstraint(Sketcher.Constraint("Horizontal", 12, 3, 13, 3))
sketch5.addConstraint(Sketcher.Constraint("Horizontal", 14, 3, 15, 3))
sketch5.addConstraint(Sketcher.Constraint("Horizontal", 13, 3, 16, 3))
sketch5.addConstraint(Sketcher.Constraint("Horizontal", 15, 3, 17, 3))
sketch5.addConstraint(Sketcher.Constraint("Horizontal", 17, 3, 18, 3))
sketch5.addConstraint(Sketcher.Constraint("Horizontal", 16, 3, 19, 3))
sketch5.addConstraint(Sketcher.Constraint("Vertical", 13, 3, 14, 3))
sketch5.addConstraint(Sketcher.Constraint("Vertical", 12, 3, 15, 3))
sketch5.addConstraint(Sketcher.Constraint("Vertical", 16, 3, 17, 3))
sketch5.addConstraint(Sketcher.Constraint("Vertical", 18, 3, 19, 3))
sketch5.addConstraint(Sketcher.Constraint("Vertical", 3, 2, 7, 2))
sketch5.addConstraint(Sketcher.Constraint("Equal", 0, 6))
sketch5.addConstraint(Sketcher.Constraint("Diameter", 5, 3.0))
sketch5.addConstraint(Sketcher.Constraint("Radius", 1, 3.5))
sketch5.addConstraint(Sketcher.Constraint("DistanceX", 13, 3, 12, 3, 14.0))
sketch5.addConstraint(Sketcher.Constraint("DistanceY", 14, 3, 13, 3, 16.0))
sketch5.addConstraint(Sketcher.Constraint("DistanceX", 12, 3, 16, 3, 82.0))
sketch5.addConstraint(Sketcher.Constraint("DistanceX", 17, 3, 18, 3, 14.0))
sketch5.addConstraint(Sketcher.Constraint("DistanceX", 2, 2, 16, 3, 36.0))
sketch5.addConstraint(Sketcher.Constraint("DistanceY", 6, 2, 17, 3, 30.0))
sketch5.addConstraint(Sketcher.Constraint("DistanceY", 0, 2, 0, 1, 13.87))
sketch5.addConstraint(Sketcher.Constraint("DistanceX", 1, 3, 10, 3, 1.27))
sketch5.addConstraint(Sketcher.Constraint("DistanceY", 10, 3, 1, 3, 48.26))
sketch5.addConstraint(Sketcher.Constraint("DistanceX", 2, 2, 2, 1, 7.664943))
sketch5.addConstraint(Sketcher.Constraint("DistanceX", -1, 1, 1, 3, 83.93613))
sketch5.addConstraint(Sketcher.Constraint("DistanceY", 1, 3, -1, 1, 31.434972))
sketch5.setExpression("Constraints[42]", "Params.sketch5_diameter")
sketch5.setExpression("Constraints[43]", "Params.sketch5_radius")
sketch5.setExpression("Constraints[50]", "Params.sketch5_height")
pad2 = body.newObject("PartDesign::Pad", "Pad001")
pad2.Profile = sketch5
pad2.setExpression("Length", "Params.pad2_length")

# Sketch on XZ plane
sketch6 = body.newObject("Sketcher::SketchObject", "Sketch005")
sketch6.AttachmentSupport = (doc.getObject("XZ_Plane"), [""])
sketch6.MapMode = "FlatFace"
sketch6.addGeometry(Part.Circle(V(33.1, -46.7, 0), V(0, 0, 1), 1.5), False)
sketch6.addConstraint(Sketcher.Constraint("Diameter", 0, 3.0))
sketch6.addConstraint(Sketcher.Constraint("DistanceX", -1, 1, 0, 3, 33.13613))
sketch6.addConstraint(Sketcher.Constraint("DistanceY", 0, 3, -1, 1, 46.674972))
sketch6.setExpression("Constraints[0]", "Params.sketch6_diameter")
pocket4 = body.newObject("PartDesign::Pocket", "Pocket003")
pocket4.Profile = sketch6
pocket4.setExpression("Length", "Params.pocket4_length")
pocket4.Reversed = True

# Sketch on XZ plane
sketch7 = body.newObject("Sketcher::SketchObject", "Sketch006")
sketch7.AttachmentSupport = (doc.getObject("XZ_Plane"), [""])
sketch7.MapMode = "FlatFace"
sketch7.addGeometry(Part.Circle(V(21.8, -65.6, 0), V(0, 0, 1), 1.5), False)
sketch7.addGeometry(Part.Circle(V(21.8, -45.6, 0), V(0, 0, 1), 1.5), False)
sketch7.addConstraint(Sketcher.Constraint("Equal", 0, 1))
sketch7.addConstraint(Sketcher.Constraint("Vertical", 0, 3, 1, 3))
sketch7.addConstraint(Sketcher.Constraint("Diameter", 0, 3.0))
sketch7.addConstraint(Sketcher.Constraint("DistanceY", 0, 3, 1, 3, 20.0))
sketch7.addConstraint(Sketcher.Constraint("DistanceY", 0, 3, -1, 1, 65.564972))
sketch7.addConstraint(Sketcher.Constraint("DistanceX", -1, 1, 0, 3, 21.821186))
sketch7.setExpression("Constraints[2]", "Params.sketch7_diameter")
pocket5 = body.newObject("PartDesign::Pocket", "Pocket004")
pocket5.Profile = sketch7
pocket5.setExpression("Length", "Params.pocket5_length")
pocket5.Reversed = True

# Sketch on XZ plane
sketch8 = body.newObject("Sketcher::SketchObject", "Sketch007")
sketch8.AttachmentSupport = (doc.getObject("XZ_Plane"), [""])
sketch8.MapMode = "FlatFace"
add_polygon(sketch8, [(108, -73), (108, -38), (130, -38), (130, -73)])  # lines 0-3
sketch8.addConstraint(Sketcher.Constraint("Vertical", 0))
sketch8.addConstraint(Sketcher.Constraint("Horizontal", 1))
sketch8.addConstraint(Sketcher.Constraint("Vertical", 2))
sketch8.addConstraint(Sketcher.Constraint("Horizontal", 3))
sketch8.addConstraint(Sketcher.Constraint("DistanceX", 1, 1, 1, 2, 22.0))
sketch8.addConstraint(Sketcher.Constraint("DistanceY", 0, 1, 0, 2, 35.0))
sketch8.addConstraint(Sketcher.Constraint("DistanceY", 0, 2, -1, 1, 38.064972))
sketch8.addConstraint(Sketcher.Constraint("DistanceX", -1, 1, 0, 2, 108.271186))
sketch8.setExpression("Constraints[8]", "Params.sketch8_width")
sketch8.setExpression("Constraints[9]", "Params.sketch8_height")
pocket6 = body.newObject("PartDesign::Pocket", "Pocket005")
pocket6.Profile = sketch8
pocket6.setExpression("Length", "Params.pocket6_length")
pocket6.Reversed = True
doc.recompute()

fillet2 = body.newObject("PartDesign::Fillet", "Fillet001")
fillet2.Base = (pocket6, edges_at(pocket6, [
    (76.271, -1.5, -76.195),
    (88.706, -1.5, -93.565),
    (87.436, -1.5, -17.565),
    (76.271, -1.5, -34.935),
    (108.271, -1.5, -38.065),
    (108.271, -1.5, -73.065),
    (130.271, -1.5, -73.065),
    (130.271, -1.5, -38.065),
]))
fillet2.setExpression("Radius", "Params.fillet2_radius")

doc.recompute()
